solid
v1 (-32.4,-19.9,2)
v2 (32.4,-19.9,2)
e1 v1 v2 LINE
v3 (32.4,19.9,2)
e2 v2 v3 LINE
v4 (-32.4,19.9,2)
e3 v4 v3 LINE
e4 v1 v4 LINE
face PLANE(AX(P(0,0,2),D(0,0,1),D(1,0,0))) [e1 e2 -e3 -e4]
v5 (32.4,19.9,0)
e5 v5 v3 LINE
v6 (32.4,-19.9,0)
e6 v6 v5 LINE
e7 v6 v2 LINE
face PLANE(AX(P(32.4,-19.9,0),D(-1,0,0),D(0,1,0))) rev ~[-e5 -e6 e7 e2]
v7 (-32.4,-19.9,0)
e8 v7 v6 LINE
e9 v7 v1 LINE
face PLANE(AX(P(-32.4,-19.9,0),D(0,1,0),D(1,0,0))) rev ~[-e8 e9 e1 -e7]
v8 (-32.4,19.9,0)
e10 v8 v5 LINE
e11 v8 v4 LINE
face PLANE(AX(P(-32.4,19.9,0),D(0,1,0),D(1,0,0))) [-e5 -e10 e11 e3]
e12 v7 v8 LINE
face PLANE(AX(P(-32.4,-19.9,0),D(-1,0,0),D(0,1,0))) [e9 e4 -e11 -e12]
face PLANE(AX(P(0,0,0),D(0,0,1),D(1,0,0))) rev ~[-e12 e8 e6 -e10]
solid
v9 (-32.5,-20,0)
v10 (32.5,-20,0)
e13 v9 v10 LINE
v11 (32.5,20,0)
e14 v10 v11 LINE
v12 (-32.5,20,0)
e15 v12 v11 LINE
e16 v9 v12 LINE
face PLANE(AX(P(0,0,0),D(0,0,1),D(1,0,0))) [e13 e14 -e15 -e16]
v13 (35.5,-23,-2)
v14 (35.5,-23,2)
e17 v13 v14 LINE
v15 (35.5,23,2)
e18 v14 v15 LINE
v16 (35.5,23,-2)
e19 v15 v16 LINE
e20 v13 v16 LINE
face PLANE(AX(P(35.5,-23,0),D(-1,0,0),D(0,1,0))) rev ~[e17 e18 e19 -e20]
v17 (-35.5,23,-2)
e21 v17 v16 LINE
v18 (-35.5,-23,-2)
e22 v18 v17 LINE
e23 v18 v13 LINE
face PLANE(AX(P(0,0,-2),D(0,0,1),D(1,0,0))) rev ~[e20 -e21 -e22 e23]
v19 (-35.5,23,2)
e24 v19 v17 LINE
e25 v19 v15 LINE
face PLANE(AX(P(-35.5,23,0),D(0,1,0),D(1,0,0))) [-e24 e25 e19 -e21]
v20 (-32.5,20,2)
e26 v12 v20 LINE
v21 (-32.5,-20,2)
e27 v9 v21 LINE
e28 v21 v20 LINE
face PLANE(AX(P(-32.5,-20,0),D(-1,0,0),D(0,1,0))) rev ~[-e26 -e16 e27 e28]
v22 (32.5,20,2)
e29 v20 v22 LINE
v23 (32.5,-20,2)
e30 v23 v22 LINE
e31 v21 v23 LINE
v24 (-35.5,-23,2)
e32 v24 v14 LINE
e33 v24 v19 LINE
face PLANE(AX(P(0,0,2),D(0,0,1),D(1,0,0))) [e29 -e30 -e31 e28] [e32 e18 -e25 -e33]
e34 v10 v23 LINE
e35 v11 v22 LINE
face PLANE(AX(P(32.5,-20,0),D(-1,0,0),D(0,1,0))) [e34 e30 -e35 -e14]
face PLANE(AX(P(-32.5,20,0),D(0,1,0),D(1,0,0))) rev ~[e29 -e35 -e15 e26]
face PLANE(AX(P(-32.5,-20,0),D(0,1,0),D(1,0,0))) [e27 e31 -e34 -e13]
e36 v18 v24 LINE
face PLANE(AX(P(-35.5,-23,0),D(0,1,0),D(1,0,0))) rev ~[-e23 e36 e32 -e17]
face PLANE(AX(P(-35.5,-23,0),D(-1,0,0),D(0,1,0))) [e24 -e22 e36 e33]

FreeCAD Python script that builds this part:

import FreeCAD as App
import Part
import Sketcher

doc = App.newDocument("Part")
params = doc.addObject("Spreadsheet::Sheet", "Params")
for row, (alias, value) in enumerate([
    ("sketch1_width", "64.8 mm"),
    ("sketch1_height", "39.8 mm"),
    ("pad1_length", "2 mm"),
    ("sketch2_width", "71 mm"),
    ("sketch2_height", "46 mm"),
    ("pad2_length", "2 mm"),
    ("sketch3_width", "71 mm"),
    ("sketch3_width2", "65 mm"),
    ("sketch3_height", "46 mm"),
    ("sketch3_height2", "40 mm"),
    ("pad3_length", "2 mm"),
], start=1):
    params.set(f"A{row}", alias)
    params.set(f"B{row}", "=" + value)
    params.setAlias(f"B{row}", alias)

body = doc.addObject("PartDesign::Body", "Body")

# Sketch on XY plane
sketch1 = doc.addObject("Sketcher::SketchObject", "Sketch")
body.addObject(sketch1)
sketch1.AttachmentSupport = (doc.XY_Plane, [""])
sketch1.MapMode = "FlatFace"
sketch1.addGeometry(Part.LineSegment(App.Vector(-32, 20, 0), App.Vector(-32, -20, 0)), False)
sketch1.addGeometry(Part.LineSegment(App.Vector(-32, -20, 0), App.Vector(32, -20, 0)), False)
sketch1.addGeometry(Part.LineSegment(App.Vector(32, -20, 0), App.Vector(32, 20, 0)), False)
sketch1.addGeometry(Part.LineSegment(App.Vector(32, 20, 0), App.Vector(-32, 20, 0)), False)
sketch1.addConstraint(Sketcher.Constraint("Coincident", 0, 2, 1, 1))
sketch1.addConstraint(Sketcher.Constraint("Coincident", 1, 2, 2, 1))
sketch1.addConstraint(Sketcher.Constraint("Coincident", 2, 2, 3, 1))
sketch1.addConstraint(Sketcher.Constraint("Coincident", 3, 2, 0, 1))
sketch1.addConstraint(Sketcher.Constraint("Vertical", 0))
sketch1.addConstraint(Sketcher.Constraint("Horizontal", 1))
sketch1.addConstraint(Sketcher.Constraint("Vertical", 2))
sketch1.addConstraint(Sketcher.Constraint("Horizontal", 3))
sketch1.addConstraint(Sketcher.Constraint("Symmetric", 0, 2, 2, 2, -1, 1))
sketch1.addConstraint(Sketcher.Constraint("DistanceX", 1, 1, 1, 2, 64.8))
sketch1.addConstraint(Sketcher.Constraint("DistanceY", 0, 2, 0, 1, 39.8))
sketch1.setExpression("Constraints[9]", "Params.sketch1_width")
sketch1.setExpression("Constraints[10]", "Params.sketch1_height")
pad1 = doc.addObject("PartDesign::Pad", "Pad")
body.addObject(pad1)
pad1.Profile = sketch1
pad1.setExpression("Length", "Params.pad1_length")
body2 = doc.addObject("PartDesign::Body", "Body001")

# Sketch on XY plane
sketch2 = doc.addObject("Sketcher::SketchObject", "Sketch001")
body2.addObject(sketch2)
sketch2.AttachmentSupport = (doc.getObject("XY_Plane001"), [""])
sketch2.MapMode = "FlatFace"
sketch2.addGeometry(Part.LineSegment(App.Vector(-36, 23, 0), App.Vector(-36, -23, 0)), False)
sketch2.addGeometry(Part.LineSegment(App.Vector(-36, -23, 0), App.Vector(36, -23, 0)), False)
sketch2.addGeometry(Part.LineSegment(App.Vector(36, -23, 0), App.Vector(36, 23, 0)), False)
sketch2.addGeometry(Part.LineSegment(App.Vector(36, 23, 0), App.Vector(-36, 23, 0)), False)
sketch2.addConstraint(Sketcher.Constraint("Coincident", 0, 2, 1, 1))
sketch2.addConstraint(Sketcher.Constraint("Coincident", 1, 2, 2, 1))
sketch2.addConstraint(Sketcher.Constraint("Coincident", 2, 2, 3, 1))
sketch2.addConstraint(Sketcher.Constraint("Coincident", 3, 2, 0, 1))
sketch2.addConstraint(Sketcher.Constraint("Vertical", 0))
sketch2.addConstraint(Sketcher.Constraint("Horizontal", 1))
sketch2.addConstraint(Sketcher.Constraint("Vertical", 2))
sketch2.addConstraint(Sketcher.Constraint("Horizontal", 3))
sketch2.addConstraint(Sketcher.Constraint("Symmetric", 0, 2, 2, 2, -1, 1))
sketch2.addConstraint(Sketcher.Constraint("DistanceX", 1, 1, 1, 2, 71.0))
sketch2.addConstraint(Sketcher.Constraint("DistanceY", 0, 2, 0, 1, 46.0))
sketch2.setExpression("Constraints[9]", "Params.sketch2_width")
sketch2.setExpression("Constraints[10]", "Params.sketch2_height")
pad2 = doc.addObject("PartDesign::Pad", "Pad001")
body2.addObject(pad2)
pad2.Profile = sketch2
pad2.setExpression("Length", "Params.pad2_length")
pad2.Reversed = True

# Sketch on XY plane
sketch3 = doc.addObject("Sketcher::SketchObject", "Sketch002")
body2.addObject(sketch3)
sketch3.AttachmentSupport = (doc.getObject("XY_Plane001"), [""])
sketch3.MapMode = "FlatFace"
sketch3.addGeometry(Part.LineSegment(App.Vector(-36, 23, 0), App.Vector(-36, -23, 0)), False)
sketch3.addGeometry(Part.LineSegment(App.Vector(-36, -23, 0), App.Vector(36, -23, 0)), False)
sketch3.addGeometry(Part.LineSegment(App.Vector(36, -23, 0), App.Vector(36, 23, 0)), False)
sketch3.addGeometry(Part.LineSegment(App.Vector(36, 23, 0), App.Vector(-36, 23, 0)), False)
sketch3.addGeometry(Part.LineSegment(App.Vector(32, -20, 0), App.Vector(-32, -20, 0)), False)
sketch3.addGeometry(Part.LineSegment(App.Vector(-32, -20, 0), App.Vector(-32, 20, 0)), False)
sketch3.addGeometry(Part.LineSegment(App.Vector(-32, 20, 0), App.Vector(32, 20, 0)), False)
sketch3.addGeometry(Part.LineSegment(App.Vector(32, 20, 0), App.Vector(32, -20, 0)), False)
sketch3.addConstraint(Sketcher.Constraint("Coincident", 0, 2, 1, 1))
sketch3.addConstraint(Sketcher.Constraint("Coincident", 1, 2, 2, 1))
sketch3.addConstraint(Sketcher.Constraint("Coincident", 2, 2, 3, 1))
sketch3.addConstraint(Sketcher.Constraint("Coincident", 3, 2, 0, 1))
sketch3.addConstraint(Sketcher.Constraint("Coincident", 4, 2, 5, 1))
sketch3.addConstraint(Sketcher.Constraint("Coincident", 5, 2, 6, 1))
sketch3.addConstraint(Sketcher.Constraint("Coincident", 6, 2, 7, 1))
sketch3.addConstraint(Sketcher.Constraint("Coincident", 7, 2, 4, 1))
sketch3.addConstraint(Sketcher.Constraint("Vertical", 0))
sketch3.addConstraint(Sketcher.Constraint("Horizontal", 1))
sketch3.addConstraint(Sketcher.Constraint("Vertical", 2))
sketch3.addConstraint(Sketcher.Constraint("Horizontal", 3))
sketch3.addConstraint(Sketcher.Constraint("Horizontal", 4))
sketch3.addConstraint(Sketcher.Constraint("Vertical", 5))
sketch3.addConstraint(Sketcher.Constraint("Horizontal", 6))
sketch3.addConstraint(Sketcher.Constraint("Vertical", 7))
sketch3.addConstraint(Sketcher.Constraint("Symmetric", 0, 2, 2, 2, -1, 1))
sketch3.addConstraint(Sketcher.Constraint("Symmetric", 4, 2, 6, 2, -1, 1))
sketch3.addConstraint(Sketcher.Constraint("DistanceX", 1, 1, 1, 2, 71.0))
sketch3.addConstraint(Sketcher.Constraint("DistanceX", 4, 2, 4, 1, 65.0))
sketch3.addConstraint(Sketcher.Constraint("DistanceY", 0, 2, 0, 1, 46.0))
sketch3.addConstraint(Sketcher.Constraint("DistanceY", 5, 1, 5, 2, 40.0))
sketch3.setExpression("Constraints[18]", "Params.sketch3_width")
sketch3.setExpression("Constraints[19]", "Params.sketch3_width2")
sketch3.setExpression("Constraints[20]", "Params.sketch3_height")
sketch3.setExpression("Constraints[21]", "Params.sketch3_height2")
pad3 = doc.addObject("PartDesign::Pad", "Pad002")
body2.addObject(pad3)
pad3.Profile = sketch3
pad3.setExpression("Length", "Params.pad3_length")

doc.recompute()
